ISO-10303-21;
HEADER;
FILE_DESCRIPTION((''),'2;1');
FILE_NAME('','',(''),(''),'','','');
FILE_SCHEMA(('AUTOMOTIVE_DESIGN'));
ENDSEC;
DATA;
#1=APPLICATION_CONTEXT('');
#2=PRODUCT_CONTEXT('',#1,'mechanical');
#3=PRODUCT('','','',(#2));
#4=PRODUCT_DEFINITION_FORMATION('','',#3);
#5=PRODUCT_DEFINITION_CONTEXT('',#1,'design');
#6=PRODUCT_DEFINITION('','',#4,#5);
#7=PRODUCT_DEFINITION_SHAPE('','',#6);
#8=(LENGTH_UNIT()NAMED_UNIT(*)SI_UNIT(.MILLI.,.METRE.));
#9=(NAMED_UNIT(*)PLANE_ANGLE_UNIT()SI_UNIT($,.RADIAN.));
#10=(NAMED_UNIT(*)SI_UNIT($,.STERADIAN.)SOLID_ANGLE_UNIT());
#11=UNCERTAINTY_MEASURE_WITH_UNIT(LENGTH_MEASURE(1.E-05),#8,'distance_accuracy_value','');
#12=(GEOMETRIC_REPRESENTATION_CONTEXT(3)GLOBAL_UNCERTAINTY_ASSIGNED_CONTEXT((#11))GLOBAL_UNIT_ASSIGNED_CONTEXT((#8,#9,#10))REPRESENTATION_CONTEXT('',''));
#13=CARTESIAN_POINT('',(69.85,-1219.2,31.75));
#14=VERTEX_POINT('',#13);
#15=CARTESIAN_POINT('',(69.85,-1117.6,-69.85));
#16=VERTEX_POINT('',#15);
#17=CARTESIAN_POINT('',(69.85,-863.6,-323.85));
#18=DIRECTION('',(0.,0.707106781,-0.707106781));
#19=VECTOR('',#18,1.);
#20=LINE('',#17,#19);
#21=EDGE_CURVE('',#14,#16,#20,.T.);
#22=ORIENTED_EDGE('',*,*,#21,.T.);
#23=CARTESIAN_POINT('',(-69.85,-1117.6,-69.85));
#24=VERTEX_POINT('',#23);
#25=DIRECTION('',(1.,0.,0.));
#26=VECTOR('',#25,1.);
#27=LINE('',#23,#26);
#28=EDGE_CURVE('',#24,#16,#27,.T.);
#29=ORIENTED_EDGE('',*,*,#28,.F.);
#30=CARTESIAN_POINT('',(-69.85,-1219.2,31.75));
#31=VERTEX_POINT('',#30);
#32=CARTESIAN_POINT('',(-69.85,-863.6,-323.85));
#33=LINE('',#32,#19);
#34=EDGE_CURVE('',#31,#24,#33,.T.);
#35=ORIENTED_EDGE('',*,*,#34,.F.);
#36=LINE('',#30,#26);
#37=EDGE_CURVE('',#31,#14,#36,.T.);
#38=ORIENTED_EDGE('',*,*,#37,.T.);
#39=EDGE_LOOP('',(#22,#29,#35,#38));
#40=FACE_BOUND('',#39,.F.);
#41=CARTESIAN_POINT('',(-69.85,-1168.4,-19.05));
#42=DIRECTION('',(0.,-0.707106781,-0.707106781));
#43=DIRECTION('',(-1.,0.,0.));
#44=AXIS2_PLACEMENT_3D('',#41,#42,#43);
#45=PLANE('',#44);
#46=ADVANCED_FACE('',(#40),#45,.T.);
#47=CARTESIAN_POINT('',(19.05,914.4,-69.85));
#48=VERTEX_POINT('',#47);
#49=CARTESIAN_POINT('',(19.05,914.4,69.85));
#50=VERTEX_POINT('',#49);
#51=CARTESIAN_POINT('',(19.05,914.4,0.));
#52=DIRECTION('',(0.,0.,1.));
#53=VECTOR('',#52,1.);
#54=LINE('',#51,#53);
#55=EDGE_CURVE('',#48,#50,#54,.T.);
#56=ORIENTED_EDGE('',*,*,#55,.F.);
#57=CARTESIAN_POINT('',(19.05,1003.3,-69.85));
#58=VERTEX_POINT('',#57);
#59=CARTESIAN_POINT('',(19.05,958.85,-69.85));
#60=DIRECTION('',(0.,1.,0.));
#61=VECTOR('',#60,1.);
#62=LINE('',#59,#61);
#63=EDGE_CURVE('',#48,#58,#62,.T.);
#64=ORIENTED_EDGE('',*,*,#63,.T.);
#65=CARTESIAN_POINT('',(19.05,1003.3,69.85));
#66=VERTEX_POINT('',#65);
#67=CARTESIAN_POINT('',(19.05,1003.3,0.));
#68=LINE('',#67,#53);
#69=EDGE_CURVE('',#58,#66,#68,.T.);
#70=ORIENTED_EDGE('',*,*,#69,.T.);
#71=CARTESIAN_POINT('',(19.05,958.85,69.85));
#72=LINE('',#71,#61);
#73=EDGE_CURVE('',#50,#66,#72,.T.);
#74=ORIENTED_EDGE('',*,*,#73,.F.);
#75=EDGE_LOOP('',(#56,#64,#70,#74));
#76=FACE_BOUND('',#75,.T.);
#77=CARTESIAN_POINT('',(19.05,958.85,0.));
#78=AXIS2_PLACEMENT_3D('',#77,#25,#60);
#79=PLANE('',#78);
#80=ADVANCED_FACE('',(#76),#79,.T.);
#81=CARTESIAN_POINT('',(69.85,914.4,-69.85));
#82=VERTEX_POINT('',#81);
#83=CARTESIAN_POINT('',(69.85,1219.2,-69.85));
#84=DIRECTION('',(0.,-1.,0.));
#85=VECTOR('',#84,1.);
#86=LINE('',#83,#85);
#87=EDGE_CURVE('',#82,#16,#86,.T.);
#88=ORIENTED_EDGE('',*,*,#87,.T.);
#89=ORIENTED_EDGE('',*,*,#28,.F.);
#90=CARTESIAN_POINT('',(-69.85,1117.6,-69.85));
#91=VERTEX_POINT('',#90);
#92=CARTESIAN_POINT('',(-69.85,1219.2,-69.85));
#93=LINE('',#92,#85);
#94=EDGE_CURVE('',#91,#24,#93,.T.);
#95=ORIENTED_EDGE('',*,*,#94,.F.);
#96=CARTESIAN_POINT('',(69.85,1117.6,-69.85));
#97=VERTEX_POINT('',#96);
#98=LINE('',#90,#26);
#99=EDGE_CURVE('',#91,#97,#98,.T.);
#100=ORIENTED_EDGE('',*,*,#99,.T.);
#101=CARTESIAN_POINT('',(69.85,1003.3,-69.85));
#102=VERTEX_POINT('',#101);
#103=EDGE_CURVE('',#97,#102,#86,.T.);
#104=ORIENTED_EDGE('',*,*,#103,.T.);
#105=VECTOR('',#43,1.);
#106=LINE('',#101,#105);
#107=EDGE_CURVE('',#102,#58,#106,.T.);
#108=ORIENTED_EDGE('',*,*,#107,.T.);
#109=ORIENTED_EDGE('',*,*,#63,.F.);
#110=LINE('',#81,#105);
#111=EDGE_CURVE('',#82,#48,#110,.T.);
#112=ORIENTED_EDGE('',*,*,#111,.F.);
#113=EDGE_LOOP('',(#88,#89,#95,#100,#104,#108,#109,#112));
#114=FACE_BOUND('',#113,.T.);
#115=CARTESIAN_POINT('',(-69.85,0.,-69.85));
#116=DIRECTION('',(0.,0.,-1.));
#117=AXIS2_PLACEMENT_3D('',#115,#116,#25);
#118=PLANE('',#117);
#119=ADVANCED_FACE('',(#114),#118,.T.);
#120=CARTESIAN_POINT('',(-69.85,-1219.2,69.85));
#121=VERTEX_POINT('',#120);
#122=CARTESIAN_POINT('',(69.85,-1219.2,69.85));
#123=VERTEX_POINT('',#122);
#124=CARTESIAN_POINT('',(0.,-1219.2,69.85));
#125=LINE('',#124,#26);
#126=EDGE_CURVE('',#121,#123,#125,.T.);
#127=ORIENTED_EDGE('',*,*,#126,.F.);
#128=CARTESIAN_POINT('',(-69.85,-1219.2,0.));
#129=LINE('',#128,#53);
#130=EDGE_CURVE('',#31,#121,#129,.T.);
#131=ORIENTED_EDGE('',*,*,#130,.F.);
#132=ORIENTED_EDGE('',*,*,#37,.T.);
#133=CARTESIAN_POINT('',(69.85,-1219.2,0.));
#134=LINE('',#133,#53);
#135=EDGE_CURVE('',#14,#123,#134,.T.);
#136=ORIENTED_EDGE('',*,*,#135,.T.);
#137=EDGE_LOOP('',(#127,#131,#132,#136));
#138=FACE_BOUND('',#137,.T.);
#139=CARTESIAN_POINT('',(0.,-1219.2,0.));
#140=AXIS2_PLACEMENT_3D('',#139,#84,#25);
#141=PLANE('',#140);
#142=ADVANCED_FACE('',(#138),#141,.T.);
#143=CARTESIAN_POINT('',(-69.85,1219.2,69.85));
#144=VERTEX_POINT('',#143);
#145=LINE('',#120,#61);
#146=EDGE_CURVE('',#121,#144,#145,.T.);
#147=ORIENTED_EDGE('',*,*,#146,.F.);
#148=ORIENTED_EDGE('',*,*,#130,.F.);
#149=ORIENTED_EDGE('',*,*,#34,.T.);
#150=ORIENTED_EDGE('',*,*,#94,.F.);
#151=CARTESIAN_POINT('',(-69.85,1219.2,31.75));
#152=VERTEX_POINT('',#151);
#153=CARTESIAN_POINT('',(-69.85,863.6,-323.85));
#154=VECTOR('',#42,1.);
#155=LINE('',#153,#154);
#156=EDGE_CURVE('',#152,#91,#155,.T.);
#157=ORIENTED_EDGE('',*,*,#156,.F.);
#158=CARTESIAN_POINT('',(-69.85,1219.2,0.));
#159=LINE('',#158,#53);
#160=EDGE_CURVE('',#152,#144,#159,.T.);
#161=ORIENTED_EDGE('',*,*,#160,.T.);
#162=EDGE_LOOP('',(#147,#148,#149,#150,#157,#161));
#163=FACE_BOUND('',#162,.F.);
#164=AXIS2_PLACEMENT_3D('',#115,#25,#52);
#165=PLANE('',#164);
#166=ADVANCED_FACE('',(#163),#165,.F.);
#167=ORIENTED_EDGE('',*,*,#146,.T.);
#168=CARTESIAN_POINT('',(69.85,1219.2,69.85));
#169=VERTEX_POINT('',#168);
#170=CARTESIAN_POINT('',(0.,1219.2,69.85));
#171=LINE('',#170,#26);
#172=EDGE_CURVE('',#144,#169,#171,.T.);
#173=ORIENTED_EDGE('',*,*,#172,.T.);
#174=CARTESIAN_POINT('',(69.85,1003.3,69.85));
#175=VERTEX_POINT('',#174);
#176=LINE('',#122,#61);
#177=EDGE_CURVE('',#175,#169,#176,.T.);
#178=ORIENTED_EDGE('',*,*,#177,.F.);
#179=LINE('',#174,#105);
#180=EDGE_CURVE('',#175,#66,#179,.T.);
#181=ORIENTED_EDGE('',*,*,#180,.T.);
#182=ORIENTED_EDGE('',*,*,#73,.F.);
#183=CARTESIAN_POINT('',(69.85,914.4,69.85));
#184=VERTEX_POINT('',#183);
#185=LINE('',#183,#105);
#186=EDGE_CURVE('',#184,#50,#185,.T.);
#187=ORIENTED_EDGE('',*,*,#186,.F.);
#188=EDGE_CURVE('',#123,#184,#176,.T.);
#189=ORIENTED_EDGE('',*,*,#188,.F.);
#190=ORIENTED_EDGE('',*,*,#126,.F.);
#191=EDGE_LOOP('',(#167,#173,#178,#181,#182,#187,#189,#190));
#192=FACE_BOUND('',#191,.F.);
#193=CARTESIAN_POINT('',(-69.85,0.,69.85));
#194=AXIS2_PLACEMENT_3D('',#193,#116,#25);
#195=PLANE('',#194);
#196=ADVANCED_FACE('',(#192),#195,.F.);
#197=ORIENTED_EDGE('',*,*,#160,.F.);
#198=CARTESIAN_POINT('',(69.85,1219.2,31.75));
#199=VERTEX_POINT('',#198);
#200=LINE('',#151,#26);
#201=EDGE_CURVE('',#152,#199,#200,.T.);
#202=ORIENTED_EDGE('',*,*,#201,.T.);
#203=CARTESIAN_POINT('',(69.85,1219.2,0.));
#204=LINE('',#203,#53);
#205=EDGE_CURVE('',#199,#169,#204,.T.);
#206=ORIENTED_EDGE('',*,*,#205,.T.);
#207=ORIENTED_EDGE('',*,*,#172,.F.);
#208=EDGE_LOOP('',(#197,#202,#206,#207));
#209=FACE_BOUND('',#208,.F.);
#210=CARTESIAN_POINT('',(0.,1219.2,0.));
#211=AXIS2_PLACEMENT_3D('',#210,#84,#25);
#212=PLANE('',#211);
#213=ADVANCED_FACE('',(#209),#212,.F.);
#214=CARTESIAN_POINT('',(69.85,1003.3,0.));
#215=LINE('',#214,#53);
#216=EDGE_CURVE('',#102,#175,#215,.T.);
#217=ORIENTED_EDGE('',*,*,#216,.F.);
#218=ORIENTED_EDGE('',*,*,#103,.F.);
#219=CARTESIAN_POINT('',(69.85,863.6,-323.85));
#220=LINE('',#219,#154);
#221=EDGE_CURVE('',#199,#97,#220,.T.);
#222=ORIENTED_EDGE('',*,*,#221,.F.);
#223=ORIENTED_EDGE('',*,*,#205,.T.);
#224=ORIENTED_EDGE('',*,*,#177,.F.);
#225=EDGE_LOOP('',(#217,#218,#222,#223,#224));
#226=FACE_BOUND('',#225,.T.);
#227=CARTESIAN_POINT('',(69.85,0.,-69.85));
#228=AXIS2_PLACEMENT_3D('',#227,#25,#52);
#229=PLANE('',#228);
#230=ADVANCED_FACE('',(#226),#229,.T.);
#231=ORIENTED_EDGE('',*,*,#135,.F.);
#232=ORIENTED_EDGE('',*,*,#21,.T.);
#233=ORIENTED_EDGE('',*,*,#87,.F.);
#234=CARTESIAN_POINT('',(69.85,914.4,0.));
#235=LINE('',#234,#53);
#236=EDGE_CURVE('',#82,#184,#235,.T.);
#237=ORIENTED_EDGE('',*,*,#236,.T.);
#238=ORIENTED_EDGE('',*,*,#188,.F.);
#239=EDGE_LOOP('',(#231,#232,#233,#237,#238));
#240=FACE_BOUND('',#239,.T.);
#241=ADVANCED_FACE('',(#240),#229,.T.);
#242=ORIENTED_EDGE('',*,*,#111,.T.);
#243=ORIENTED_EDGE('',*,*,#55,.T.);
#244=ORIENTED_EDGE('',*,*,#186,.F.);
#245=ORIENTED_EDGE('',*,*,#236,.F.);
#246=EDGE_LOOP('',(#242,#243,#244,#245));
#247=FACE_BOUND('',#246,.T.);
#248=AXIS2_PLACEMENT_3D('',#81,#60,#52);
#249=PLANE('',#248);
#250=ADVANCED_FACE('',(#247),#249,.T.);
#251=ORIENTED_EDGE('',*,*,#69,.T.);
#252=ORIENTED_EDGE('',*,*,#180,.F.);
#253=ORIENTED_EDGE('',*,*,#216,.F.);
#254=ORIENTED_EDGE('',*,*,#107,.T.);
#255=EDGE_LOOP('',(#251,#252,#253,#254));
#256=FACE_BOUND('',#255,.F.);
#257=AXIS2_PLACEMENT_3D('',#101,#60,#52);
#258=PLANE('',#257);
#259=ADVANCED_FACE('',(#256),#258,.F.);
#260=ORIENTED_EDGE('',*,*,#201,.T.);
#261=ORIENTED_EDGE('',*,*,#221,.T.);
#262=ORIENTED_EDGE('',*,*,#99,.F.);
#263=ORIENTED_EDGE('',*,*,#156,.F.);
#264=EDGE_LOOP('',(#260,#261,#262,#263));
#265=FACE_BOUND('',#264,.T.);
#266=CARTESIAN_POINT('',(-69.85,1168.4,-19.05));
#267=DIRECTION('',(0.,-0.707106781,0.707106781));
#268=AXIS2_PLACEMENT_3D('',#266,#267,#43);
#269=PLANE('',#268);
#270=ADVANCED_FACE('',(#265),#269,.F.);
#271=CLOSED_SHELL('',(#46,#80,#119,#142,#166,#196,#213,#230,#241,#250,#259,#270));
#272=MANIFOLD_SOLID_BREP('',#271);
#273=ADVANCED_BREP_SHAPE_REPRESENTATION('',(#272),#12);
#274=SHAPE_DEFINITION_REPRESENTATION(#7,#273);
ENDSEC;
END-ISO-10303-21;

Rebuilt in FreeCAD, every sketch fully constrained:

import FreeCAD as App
import Part
import Sketcher
Q = App.Units.Quantity


def edges_at(feature, points):
    """Names of the edges that pass closest to the given points."""
    edges = feature.Shape.Edges
    near = lambda p: min(range(len(edges)), key=lambda i: edges[i].distToShape(Part.Vertex(*p))[0])
    return sorted({f"Edge{near(p) + 1}" for p in points})

doc = App.newDocument("Part")
body = doc.addObject("PartDesign::Body", "Body")

# Sketch on XZ plane
sketch1 = body.newObject("Sketcher::SketchObject", "Sketch")
sketch1.AttachmentSupport = (doc.getObject("XZ_Plane"), [""])
sketch1.MapMode = "FlatFace"
sketch1.addGeometry(Part.LineSegment(App.Vector(-70, 70, 0), App.Vector(-70, -70, 0)), False)
sketch1.addGeometry(Part.LineSegment(App.Vector(-70, -70, 0), App.Vector(70, -70, 0)), False)
sketch1.addGeometry(Part.LineSegment(App.Vector(70, -70, 0), App.Vector(70, 70, 0)), False)
sketch1.addGeometry(Part.LineSegment(App.Vector(70, 70, 0), App.Vector(-70, 70, 0)), False)
sketch1.addConstraint(Sketcher.Constraint("Coincident", 0, 2, 1, 1))
sketch1.addConstraint(Sketcher.Constraint("Coincident", 1, 2, 2, 1))
sketch1.addConstraint(Sketcher.Constraint("Coincident", 2, 2, 3, 1))
sketch1.addConstraint(Sketcher.Constraint("Coincident", 3, 2, 0, 1))
sketch1.addConstraint(Sketcher.Constraint("Vertical", 0))
sketch1.addConstraint(Sketcher.Constraint("Horizontal", 1))
sketch1.addConstraint(Sketcher.Constraint("Vertical", 2))
sketch1.addConstraint(Sketcher.Constraint("Horizontal", 3))
sketch1.addConstraint(Sketcher.Constraint("Symmetric", 0, 2, 2, 2, -1, 1))
sketch1.addConstraint(Sketcher.Constraint("Equal", 3, 0))
sketch1.addConstraint(Sketcher.Constraint("DistanceX", 1, 1, 1, 2, Q("5.5 in")))
pad1 = body.newObject("PartDesign::Pad", "Pad")
pad1.Profile = sketch1
pad1.Length = Q("96 in")
pad1.Midplane = True
doc.recompute()

chamfer = body.newObject("PartDesign::Chamfer", "Chamfer")
chamfer.Base = (pad1, edges_at(pad1, [(0, -1219.2, -69.85), (0, 1219.2, -69.85)]))
chamfer.Size = Q("4 in")

# Sketch on YZ plane
sketch2 = body.newObject("Sketcher::SketchObject", "Sketch001")
sketch2.AttachmentSupport = (doc.getObject("YZ_Plane"), [""])
sketch2.MapMode = "FlatFace"
sketch2.AttachmentOffset = App.Placement(App.Vector(0, 0, 2.75 * 25.4), App.Rotation())
sketch2.addGeometry(Part.LineSegment(App.Vector(914, 70, 0), App.Vector(914, -70, 0)), False)
sketch2.addGeometry(Part.LineSegment(App.Vector(914, -70, 0), App.Vector(1003, -70, 0)), False)
sketch2.addGeometry(Part.LineSegment(App.Vector(1003, -70, 0), App.Vector(1003, 70, 0)), False)
sketch2.addGeometry(Part.LineSegment(App.Vector(1003, 70, 0), App.Vector(914, 70, 0)), False)
sketch2.addConstraint(Sketcher.Constraint("Coincident", 0, 2, 1, 1))
sketch2.addConstraint(Sketcher.Constraint("Coincident", 1, 2, 2, 1))
sketch2.addConstraint(Sketcher.Constraint("Coincident", 2, 2, 3, 1))
sketch2.addConstraint(Sketcher.Constraint("Coincident", 3, 2, 0, 1))
sketch2.addConstraint(Sketcher.Constraint("Vertical", 0))
sketch2.addConstraint(Sketcher.Constraint("Horizontal", 1))
sketch2.addConstraint(Sketcher.Constraint("Vertical", 2))
sketch2.addConstraint(Sketcher.Constraint("Horizontal", 3))
sketch2.addConstraint(Sketcher.Constraint("DistanceX", 1, 1, 1, 2, Q("3.5 in")))
sketch2.addConstraint(Sketcher.Constraint("DistanceY", 0, 2, 0, 1, Q("5.5 in")))
sketch2.addConstraint(Sketcher.Constraint("DistanceX", -1, 1, 0, 2, Q("36 in")))
sketch2.addConstraint(Sketcher.Constraint("DistanceY", 0, 2, -1, 1, Q("2.75 in")))
pocket1 = body.newObject("PartDesign::Pocket", "Pocket")
pocket1.Profile = sketch2
pocket1.Length = Q("2 in")

doc.recompute()
